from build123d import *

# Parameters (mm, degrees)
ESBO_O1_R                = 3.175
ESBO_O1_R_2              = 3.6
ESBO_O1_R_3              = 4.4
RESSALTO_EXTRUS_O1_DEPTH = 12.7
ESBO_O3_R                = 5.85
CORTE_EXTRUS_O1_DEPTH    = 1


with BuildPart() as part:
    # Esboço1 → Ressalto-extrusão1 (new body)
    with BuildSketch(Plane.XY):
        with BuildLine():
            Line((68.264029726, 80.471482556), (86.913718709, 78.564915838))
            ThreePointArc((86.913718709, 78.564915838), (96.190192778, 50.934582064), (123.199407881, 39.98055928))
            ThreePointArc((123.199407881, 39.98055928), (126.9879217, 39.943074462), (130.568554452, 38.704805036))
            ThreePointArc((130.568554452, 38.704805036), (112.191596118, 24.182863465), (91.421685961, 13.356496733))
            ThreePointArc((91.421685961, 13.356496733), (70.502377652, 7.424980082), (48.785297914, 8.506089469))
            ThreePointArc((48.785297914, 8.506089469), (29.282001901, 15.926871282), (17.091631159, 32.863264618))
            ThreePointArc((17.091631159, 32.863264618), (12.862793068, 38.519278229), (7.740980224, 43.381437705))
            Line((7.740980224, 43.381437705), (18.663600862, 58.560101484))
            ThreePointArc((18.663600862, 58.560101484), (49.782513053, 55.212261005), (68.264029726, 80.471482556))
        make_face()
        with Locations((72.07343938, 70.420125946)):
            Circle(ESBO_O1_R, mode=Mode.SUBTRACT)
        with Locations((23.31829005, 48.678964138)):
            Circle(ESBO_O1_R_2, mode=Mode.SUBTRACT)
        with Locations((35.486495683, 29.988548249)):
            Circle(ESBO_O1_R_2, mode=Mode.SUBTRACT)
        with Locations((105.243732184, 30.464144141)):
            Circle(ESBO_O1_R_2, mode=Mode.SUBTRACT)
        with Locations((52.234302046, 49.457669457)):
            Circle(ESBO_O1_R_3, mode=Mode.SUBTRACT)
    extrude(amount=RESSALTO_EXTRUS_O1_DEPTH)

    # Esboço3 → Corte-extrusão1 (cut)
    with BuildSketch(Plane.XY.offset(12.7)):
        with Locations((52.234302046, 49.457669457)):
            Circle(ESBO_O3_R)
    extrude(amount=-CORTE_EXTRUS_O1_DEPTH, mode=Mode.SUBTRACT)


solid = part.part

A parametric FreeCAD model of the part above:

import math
import FreeCAD as App
import Part
import Sketcher
Q = App.Units.Quantity

doc = App.newDocument("Part")
body = doc.addObject("PartDesign::Body", "Body")

sketch1 = body.newObject("Sketcher::SketchObject", "Sketch")
sketch1.AttachmentSupport = (doc.getObject("XY_Plane"), [""])
sketch1.MapMode = "FlatFace"
sketch1.addGeometry(Part.LineSegment(App.Vector(86.9, 78.6, 0), App.Vector(68.3, 80.5, 0)), False)
sketch1.addGeometry(Part.ArcOfCircle(Part.Circle(App.Vector(37.1, 83.9, 0), App.Vector(0, 0, 1), 31.3), math.radians(-126), math.radians(-6)), False)
sketch1.addGeometry(Part.LineSegment(App.Vector(18.7, 58.6, 0), App.Vector(7.7, 43.4, 0)), False)
sketch1.addGeometry(Part.ArcOfCircle(Part.Circle(App.Vector(-18.3, 10.8, 0), App.Vector(0, 0, 1), 41.7), math.radians(31.93), math.radians(51.34)), False)
sketch1.addGeometry(Part.ArcOfCircle(Part.Circle(App.Vector(51.4, 44.7, 0), App.Vector(0, 0, 1), 36.3), math.radians(-161), math.radians(-94)), False)
sketch1.addGeometry(Part.ArcOfCircle(Part.Circle(App.Vector(62.9, 74, 0), App.Vector(0, 0, 1), 67), math.radians(-102), math.radians(-65)), False)
sketch1.addGeometry(Part.ArcOfCircle(Part.Circle(App.Vector(44.5, 128.8, 0), App.Vector(0, 0, 1), 124.6), math.radians(-68), math.radians(-46)), False)
sketch1.addGeometry(Part.ArcOfCircle(Part.Circle(App.Vector(125, 28.3, 0), App.Vector(0, 0, 1), 11.8), math.radians(62), math.radians(99)), False)
sketch1.addGeometry(Part.ArcOfCircle(Part.Circle(App.Vector(121.6, 74.8, 0), App.Vector(0, 0, 1), 34.9), math.radians(174), math.radians(273)), False)
sketch1.addGeometry(Part.Circle(App.Vector(105.2, 30.5, 0), App.Vector(0, 0, 1), 3.6), False)
sketch1.addGeometry(Part.Circle(App.Vector(35.5, 30, 0), App.Vector(0, 0, 1), 3.6), False)
sketch1.addGeometry(Part.Circle(App.Vector(52.2, 49.5, 0), App.Vector(0, 0, 1), 4.4), False)
sketch1.addGeometry(Part.Circle(App.Vector(23.3, 48.7, 0), App.Vector(0, 0, 1), 3.6), False)
sketch1.addGeometry(Part.Circle(App.Vector(72.1, 70.4, 0), App.Vector(0, 0, 1), 3.2), False)
sketch1.addConstraint(Sketcher.Constraint("Coincident", 0, 2, 1, 2))
sketch1.addConstraint(Sketcher.Constraint("Coincident", 1, 1, 2, 1))
sketch1.addConstraint(Sketcher.Constraint("Coincident", 2, 2, 3, 2))
sketch1.addConstraint(Sketcher.Constraint("Coincident", 3, 1, 4, 1))
sketch1.addConstraint(Sketcher.Constraint("Coincident", 4, 2, 5, 1))
sketch1.addConstraint(Sketcher.Constraint("Coincident", 5, 2, 6, 1))
sketch1.addConstraint(Sketcher.Constraint("Coincident", 6, 2, 7, 1))
sketch1.addConstraint(Sketcher.Constraint("Coincident", 7, 2, 8, 2))
sketch1.addConstraint(Sketcher.Constraint("Coincident", 8, 1, 0, 1))
sketch1.addConstraint(Sketcher.Constraint("Equal", 9, 10))
sketch1.addConstraint(Sketcher.Constraint("Equal", 10, 12))
sketch1.addConstraint(Sketcher.Constraint("Diameter", 9, Q("7.2 mm")))
sketch1.addConstraint(Sketcher.Constraint("Diameter", 11, Q("8.8 mm")))
sketch1.addConstraint(Sketcher.Constraint("Diameter", 13, Q("6.35 mm")))
sketch1.addConstraint(Sketcher.Constraint("Radius", 1, Q("31.3229 mm")))
sketch1.addConstraint(Sketcher.Constraint("Radius", 6, Q("124.606101 mm")))
sketch1.addConstraint(Sketcher.Constraint("Radius", 3, Q("41.741289 mm")))
sketch1.addConstraint(Sketcher.Constraint("Radius", 4, Q("36.283971 mm")))
sketch1.addConstraint(Sketcher.Constraint("Radius", 5, Q("66.98921 mm")))
sketch1.addConstraint(Sketcher.Constraint("Radius", 7, Q("11.778844 mm")))
sketch1.addConstraint(Sketcher.Constraint("Radius", 8, Q("34.897564 mm")))
sketch1.addConstraint(Sketcher.Constraint("DistanceY", 7, 3, 5, 3, Q("45.648001 mm")))
sketch1.addConstraint(Sketcher.Constraint("DistanceX", -1, 1, 1, 1, Q("18.663601 mm")))
sketch1.addConstraint(Sketcher.Constraint("DistanceY", -1, 1, 1, 1, Q("58.560101 mm")))
sketch1.addConstraint(Sketcher.Constraint("DistanceX", 9, 3, 8, 3, Q("16.3684 mm")))
sketch1.addConstraint(Sketcher.Constraint("DistanceY", 3, 3, 10, 3, Q("19.202601 mm")))
sketch1.addConstraint(Sketcher.Constraint("DistanceX", 1, 1, 11, 3, Q("33.570701 mm")))
sketch1.addConstraint(Sketcher.Constraint("DistanceX", 3, 3, 2, 2, Q("26.074301 mm")))
sketch1.addConstraint(Sketcher.Constraint("DistanceY", 3, 1, 12, 3, Q("15.8157 mm")))
sketch1.addConstraint(Sketcher.Constraint("DistanceY", 6, 2, 8, 3, Q("36.137202 mm")))
sketch1.addConstraint(Sketcher.Constraint("Distance", 0, Q("18.74689 mm")))
sketch1.addConstraint(Sketcher.Constraint("DistanceX", 3, 3, -1, 1, Q("18.333321 mm")))
sketch1.addConstraint(Sketcher.Constraint("DistanceX", -1, 1, 5, 3, Q("62.930381 mm")))
sketch1.addConstraint(Sketcher.Constraint("DistanceY", -1, 1, 5, 3, Q("73.984871 mm")))
sketch1.addConstraint(Sketcher.Constraint("DistanceX", -1, 1, 6, 3, Q("44.465311 mm")))
sketch1.addConstraint(Sketcher.Constraint("DistanceY", -1, 1, 6, 3, Q("128.776509 mm")))
sketch1.addConstraint(Sketcher.Constraint("DistanceY", -1, 1, 10, 3, Q("29.988548 mm")))
sketch1.addConstraint(Sketcher.Constraint("DistanceY", -1, 1, 11, 3, Q("49.457669 mm")))
sketch1.addConstraint(Sketcher.Constraint("DistanceX", -1, 1, 12, 3, Q("23.31829 mm")))
sketch1.addConstraint(Sketcher.Constraint("DistanceX", -1, 1, 13, 3, Q("72.073439 mm")))
sketch1.addConstraint(Sketcher.Constraint("DistanceX", -1, 1, 0, 2, Q("68.26403 mm")))
sketch1.addConstraint(Sketcher.Constraint("DistanceX", -1, 1, 3, 1, Q("17.091631 mm")))
sketch1.addConstraint(Sketcher.Constraint("DistanceY", -1, 1, 4, 2, Q("8.506089 mm")))
sketch1.addConstraint(Sketcher.Constraint("DistanceY", -1, 1, 7, 2, Q("39.980559 mm")))
sketch1.addConstraint(Sketcher.Constraint("DistanceX", -1, 1, 8, 1, Q("86.913719 mm")))
sketch1.addConstraint(Sketcher.Constraint("DistanceX", 3, 3, 1, 3, Q("55.458709 mm")))
sketch1.addConstraint(Sketcher.Constraint("DistanceY", 9, 3, 4, 3, Q("14.23217 mm")))
sketch1.addConstraint(Sketcher.Constraint("DistanceX", 10, 3, 4, 3, Q("15.905361 mm")))
sketch1.addConstraint(Sketcher.Constraint("DistanceY", 4, 3, 13, 3, Q("25.723812 mm")))
pad1 = body.newObject("PartDesign::Pad", "Pad")
pad1.Profile = sketch1
pad1.Length = 12.7

sketch2 = body.newObject("Sketcher::SketchObject", "Sketch001")
sketch2.AttachmentSupport = (doc.getObject("XY_Plane"), [""])
sketch2.MapMode = "FlatFace"
sketch2.AttachmentOffset = App.Placement(App.Vector(0, 0, 12.7), App.Rotation())
sketch2.addGeometry(Part.Circle(App.Vector(52, 49, 0), App.Vector(0, 0, 1), 6), False)
sketch2.addConstraint(Sketcher.Constraint("Diameter", 0, Q("11.7 mm")))
sketch2.addConstraint(Sketcher.Constraint("DistanceY", -1, 1, 0, 3, Q("49.457669 mm")))
sketch2.addConstraint(Sketcher.Constraint("DistanceX", -1, 1, 0, 3, Q("52.234302 mm")))
pocket1 = body.newObject("PartDesign::Pocket", "Pocket")
pocket1.Profile = sketch2
pocket1.Length = 1

doc.recompute()
